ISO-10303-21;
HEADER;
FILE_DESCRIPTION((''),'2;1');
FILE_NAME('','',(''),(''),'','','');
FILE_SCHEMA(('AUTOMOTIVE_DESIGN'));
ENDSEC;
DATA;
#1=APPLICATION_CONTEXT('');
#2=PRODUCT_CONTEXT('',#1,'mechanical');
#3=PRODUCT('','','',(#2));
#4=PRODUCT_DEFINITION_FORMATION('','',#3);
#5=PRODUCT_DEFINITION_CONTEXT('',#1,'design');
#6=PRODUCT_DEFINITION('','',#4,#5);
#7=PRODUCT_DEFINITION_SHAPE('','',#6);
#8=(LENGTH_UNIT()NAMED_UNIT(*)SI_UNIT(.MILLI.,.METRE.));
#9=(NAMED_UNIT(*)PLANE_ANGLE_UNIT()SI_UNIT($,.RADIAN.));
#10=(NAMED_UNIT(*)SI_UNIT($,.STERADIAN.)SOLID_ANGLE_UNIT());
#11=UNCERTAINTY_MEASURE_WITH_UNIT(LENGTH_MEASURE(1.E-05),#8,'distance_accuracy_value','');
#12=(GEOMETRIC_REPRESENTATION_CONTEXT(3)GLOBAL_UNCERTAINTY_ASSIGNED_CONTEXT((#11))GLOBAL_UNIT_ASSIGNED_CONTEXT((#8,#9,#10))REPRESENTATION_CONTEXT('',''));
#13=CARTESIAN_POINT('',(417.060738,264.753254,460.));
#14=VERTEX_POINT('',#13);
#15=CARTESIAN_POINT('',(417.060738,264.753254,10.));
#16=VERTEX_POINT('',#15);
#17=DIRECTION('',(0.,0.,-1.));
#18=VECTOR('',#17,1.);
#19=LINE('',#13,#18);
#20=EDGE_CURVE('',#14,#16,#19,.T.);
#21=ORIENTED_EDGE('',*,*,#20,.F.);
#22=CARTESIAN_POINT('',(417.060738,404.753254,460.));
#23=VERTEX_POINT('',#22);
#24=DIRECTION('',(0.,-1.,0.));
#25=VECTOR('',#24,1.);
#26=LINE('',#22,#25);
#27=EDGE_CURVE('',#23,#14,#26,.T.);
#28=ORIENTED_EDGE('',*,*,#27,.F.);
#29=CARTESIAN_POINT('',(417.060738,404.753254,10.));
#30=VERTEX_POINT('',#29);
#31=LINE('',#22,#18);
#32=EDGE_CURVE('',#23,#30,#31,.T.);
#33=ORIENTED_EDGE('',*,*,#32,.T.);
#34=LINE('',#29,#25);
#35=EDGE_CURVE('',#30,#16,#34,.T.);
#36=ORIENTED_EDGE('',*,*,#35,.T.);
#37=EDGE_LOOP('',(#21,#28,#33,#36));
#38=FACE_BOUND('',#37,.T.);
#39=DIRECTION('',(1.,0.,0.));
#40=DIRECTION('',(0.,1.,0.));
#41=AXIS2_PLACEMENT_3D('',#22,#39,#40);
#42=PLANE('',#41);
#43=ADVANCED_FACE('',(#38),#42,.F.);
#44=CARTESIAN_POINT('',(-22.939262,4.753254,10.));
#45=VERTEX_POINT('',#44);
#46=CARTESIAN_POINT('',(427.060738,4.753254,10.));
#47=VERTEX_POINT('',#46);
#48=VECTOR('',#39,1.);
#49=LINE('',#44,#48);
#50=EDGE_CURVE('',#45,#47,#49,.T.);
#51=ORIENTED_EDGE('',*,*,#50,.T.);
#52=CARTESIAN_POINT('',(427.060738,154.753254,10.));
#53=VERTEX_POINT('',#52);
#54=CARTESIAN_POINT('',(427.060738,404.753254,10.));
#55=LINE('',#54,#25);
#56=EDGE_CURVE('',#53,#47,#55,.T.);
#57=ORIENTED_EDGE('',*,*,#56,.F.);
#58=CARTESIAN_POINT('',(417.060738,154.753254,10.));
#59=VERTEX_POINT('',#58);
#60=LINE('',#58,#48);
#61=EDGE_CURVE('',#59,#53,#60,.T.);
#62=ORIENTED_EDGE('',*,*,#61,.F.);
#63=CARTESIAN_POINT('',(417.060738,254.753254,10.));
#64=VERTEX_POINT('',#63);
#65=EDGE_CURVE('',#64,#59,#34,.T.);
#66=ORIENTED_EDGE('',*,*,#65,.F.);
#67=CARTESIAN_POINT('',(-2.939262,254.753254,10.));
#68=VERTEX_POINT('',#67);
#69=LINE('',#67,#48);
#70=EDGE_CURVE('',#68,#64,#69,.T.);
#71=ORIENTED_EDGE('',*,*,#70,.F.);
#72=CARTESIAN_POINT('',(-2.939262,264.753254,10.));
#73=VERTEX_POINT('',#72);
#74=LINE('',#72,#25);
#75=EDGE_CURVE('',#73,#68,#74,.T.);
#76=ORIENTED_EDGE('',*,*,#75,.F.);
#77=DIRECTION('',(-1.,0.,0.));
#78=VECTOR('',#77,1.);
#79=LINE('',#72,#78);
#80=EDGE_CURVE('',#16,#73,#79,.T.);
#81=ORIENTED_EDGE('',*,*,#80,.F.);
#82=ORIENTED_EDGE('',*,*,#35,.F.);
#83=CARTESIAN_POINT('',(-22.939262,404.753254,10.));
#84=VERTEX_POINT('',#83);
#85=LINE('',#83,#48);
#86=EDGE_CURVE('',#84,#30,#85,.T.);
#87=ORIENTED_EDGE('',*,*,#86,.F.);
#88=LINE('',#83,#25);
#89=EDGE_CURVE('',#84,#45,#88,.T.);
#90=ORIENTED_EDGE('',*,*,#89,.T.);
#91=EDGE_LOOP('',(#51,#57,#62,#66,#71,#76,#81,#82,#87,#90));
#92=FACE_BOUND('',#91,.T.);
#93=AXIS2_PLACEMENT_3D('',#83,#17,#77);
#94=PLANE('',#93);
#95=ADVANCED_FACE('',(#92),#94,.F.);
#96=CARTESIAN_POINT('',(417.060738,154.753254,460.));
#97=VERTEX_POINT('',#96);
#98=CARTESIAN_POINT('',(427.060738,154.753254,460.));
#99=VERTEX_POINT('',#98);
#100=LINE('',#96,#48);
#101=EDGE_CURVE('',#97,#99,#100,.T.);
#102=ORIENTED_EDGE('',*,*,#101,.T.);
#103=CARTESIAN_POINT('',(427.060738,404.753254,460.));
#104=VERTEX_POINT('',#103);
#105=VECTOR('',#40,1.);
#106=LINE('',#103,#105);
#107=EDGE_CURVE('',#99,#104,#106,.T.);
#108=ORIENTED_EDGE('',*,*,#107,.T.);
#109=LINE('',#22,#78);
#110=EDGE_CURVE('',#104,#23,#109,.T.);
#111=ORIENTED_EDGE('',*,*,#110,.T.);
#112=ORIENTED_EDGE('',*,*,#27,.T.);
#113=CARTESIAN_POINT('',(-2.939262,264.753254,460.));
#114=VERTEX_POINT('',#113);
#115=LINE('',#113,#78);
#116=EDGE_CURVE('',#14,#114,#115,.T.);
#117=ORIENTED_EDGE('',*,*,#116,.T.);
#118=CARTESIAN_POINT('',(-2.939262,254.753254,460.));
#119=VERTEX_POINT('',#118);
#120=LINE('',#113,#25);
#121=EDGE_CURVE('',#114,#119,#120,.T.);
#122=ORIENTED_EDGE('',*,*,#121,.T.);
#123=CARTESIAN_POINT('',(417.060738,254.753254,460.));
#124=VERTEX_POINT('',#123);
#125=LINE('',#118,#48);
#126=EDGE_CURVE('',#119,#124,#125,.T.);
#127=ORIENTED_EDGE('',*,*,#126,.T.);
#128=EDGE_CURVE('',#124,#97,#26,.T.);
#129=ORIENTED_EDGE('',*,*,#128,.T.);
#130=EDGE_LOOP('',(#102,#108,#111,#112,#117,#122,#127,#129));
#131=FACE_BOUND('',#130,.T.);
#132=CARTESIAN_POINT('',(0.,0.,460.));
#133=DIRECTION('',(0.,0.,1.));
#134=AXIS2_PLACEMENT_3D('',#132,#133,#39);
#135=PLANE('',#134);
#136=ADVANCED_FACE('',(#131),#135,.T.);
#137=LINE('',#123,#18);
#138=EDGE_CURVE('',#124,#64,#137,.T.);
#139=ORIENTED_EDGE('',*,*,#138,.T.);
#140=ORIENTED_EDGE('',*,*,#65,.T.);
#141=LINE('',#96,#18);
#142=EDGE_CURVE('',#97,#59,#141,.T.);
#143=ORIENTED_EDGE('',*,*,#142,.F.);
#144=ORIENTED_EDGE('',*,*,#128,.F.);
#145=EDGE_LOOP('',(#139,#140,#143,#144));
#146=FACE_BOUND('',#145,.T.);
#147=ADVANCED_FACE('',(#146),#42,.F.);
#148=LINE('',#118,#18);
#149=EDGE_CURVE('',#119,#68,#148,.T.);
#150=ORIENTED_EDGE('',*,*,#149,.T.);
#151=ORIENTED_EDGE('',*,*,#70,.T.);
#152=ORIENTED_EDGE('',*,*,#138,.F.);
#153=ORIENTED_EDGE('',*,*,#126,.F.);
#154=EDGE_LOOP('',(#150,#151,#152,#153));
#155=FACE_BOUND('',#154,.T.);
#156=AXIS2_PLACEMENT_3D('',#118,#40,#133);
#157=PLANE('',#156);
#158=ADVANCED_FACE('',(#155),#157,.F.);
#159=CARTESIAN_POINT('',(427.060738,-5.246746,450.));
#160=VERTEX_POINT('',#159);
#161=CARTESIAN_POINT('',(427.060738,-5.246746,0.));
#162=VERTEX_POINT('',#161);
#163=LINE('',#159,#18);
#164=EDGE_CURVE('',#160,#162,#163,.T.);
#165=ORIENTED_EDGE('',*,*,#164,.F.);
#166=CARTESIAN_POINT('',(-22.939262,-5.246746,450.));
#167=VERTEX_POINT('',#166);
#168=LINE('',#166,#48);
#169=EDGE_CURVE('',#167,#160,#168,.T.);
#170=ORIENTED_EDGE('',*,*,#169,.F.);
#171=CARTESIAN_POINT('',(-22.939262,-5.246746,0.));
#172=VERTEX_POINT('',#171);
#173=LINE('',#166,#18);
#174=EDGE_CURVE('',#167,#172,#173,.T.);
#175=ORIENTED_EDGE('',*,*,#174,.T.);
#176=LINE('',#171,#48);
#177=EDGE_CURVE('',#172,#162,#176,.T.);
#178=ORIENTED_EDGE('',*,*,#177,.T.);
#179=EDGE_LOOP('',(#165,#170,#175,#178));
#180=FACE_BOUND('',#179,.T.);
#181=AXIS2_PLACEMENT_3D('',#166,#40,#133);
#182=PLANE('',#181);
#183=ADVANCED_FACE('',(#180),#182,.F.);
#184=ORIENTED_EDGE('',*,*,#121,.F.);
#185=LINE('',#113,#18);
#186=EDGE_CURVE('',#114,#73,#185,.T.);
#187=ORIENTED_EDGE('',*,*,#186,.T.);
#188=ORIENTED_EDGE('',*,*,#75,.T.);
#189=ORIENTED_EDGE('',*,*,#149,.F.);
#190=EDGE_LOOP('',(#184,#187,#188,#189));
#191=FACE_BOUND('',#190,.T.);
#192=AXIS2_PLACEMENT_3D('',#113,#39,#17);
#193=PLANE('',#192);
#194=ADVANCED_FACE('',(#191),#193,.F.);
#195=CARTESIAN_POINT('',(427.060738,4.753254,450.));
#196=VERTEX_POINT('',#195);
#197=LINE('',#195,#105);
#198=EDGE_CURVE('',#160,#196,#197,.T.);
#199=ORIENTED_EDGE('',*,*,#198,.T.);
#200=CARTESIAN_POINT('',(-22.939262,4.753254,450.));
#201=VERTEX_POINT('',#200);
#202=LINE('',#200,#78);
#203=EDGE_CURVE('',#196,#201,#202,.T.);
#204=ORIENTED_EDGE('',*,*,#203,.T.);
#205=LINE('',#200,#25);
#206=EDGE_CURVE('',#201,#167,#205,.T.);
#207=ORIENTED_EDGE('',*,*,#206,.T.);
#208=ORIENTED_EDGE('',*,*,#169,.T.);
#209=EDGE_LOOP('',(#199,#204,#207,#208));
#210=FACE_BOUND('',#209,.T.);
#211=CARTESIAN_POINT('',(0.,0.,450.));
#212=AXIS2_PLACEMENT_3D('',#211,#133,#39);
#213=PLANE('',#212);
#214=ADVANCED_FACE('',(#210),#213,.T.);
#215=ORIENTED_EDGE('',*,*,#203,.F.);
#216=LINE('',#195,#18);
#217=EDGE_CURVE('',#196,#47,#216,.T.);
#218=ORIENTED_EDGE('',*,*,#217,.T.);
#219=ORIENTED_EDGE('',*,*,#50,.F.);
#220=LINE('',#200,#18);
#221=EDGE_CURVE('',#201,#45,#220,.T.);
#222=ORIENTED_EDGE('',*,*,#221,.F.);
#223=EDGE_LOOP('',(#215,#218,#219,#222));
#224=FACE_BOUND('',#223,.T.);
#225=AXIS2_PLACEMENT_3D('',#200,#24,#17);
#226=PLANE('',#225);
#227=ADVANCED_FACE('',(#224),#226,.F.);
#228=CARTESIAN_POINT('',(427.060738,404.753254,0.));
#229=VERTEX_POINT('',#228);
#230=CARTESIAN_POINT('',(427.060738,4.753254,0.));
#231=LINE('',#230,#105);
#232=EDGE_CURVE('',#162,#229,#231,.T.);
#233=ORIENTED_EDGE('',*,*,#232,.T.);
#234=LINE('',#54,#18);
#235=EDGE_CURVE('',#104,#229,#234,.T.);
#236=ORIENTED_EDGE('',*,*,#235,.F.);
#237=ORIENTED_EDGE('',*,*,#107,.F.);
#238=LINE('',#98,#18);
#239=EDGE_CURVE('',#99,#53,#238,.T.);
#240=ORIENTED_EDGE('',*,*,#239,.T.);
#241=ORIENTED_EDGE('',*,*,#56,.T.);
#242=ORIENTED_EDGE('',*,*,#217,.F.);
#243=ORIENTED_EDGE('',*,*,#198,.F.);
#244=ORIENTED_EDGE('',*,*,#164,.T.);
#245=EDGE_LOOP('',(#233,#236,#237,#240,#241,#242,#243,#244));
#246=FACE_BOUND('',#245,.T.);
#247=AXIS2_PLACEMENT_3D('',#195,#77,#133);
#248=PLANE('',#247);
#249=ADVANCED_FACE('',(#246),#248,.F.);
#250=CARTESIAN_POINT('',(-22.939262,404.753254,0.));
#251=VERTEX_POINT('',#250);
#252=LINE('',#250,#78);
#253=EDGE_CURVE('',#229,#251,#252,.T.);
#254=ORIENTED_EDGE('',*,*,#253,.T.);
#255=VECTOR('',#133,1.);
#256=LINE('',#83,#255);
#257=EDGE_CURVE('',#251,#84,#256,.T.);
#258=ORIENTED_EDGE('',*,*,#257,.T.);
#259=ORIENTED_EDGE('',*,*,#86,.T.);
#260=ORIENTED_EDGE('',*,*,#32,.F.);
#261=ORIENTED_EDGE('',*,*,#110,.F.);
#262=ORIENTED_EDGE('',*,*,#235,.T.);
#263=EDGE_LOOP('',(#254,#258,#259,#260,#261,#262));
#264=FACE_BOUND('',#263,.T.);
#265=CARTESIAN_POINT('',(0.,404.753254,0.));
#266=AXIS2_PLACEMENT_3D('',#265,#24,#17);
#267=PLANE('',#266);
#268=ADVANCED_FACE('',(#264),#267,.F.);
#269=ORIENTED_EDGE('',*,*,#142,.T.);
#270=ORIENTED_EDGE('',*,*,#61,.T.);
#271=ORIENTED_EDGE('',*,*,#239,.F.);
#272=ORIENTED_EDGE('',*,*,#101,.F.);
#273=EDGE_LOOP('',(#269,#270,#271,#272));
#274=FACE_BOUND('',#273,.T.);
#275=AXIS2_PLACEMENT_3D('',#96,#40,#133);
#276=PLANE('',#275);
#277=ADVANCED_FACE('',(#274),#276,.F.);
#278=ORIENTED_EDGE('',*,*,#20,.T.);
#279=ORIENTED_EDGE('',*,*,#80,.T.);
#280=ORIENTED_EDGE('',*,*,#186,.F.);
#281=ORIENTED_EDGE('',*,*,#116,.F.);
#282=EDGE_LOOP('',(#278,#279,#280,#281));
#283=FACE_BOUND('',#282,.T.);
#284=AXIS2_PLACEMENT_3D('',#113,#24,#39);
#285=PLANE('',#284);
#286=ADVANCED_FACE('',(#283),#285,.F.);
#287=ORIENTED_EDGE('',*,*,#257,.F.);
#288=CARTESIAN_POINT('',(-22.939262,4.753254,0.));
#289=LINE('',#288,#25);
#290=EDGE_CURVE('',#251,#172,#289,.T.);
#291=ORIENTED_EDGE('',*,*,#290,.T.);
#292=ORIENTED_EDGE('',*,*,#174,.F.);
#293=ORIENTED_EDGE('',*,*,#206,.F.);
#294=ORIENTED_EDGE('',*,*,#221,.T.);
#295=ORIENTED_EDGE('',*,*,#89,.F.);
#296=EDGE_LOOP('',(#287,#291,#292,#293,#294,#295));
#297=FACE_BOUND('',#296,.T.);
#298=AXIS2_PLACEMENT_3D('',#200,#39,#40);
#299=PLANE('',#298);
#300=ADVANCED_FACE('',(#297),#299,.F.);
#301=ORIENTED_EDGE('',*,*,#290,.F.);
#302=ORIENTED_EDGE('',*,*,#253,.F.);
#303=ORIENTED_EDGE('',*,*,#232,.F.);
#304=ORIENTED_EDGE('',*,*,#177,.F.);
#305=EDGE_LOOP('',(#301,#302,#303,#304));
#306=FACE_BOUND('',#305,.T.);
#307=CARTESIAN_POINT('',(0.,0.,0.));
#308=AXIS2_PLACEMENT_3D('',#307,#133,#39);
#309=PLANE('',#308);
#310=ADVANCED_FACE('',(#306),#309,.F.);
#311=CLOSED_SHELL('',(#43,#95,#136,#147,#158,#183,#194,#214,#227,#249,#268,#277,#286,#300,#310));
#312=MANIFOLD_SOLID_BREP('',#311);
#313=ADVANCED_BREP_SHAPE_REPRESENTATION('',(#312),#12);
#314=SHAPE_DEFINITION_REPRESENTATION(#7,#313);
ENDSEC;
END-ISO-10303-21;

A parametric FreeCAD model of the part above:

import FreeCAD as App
import Part
import Sketcher
from FreeCAD import Vector


def add_polygon(sketch, points):
    """Adds a closed chain of lines whose ends are joined by coincident constraints."""
    first, n = sketch.GeometryCount, len(points)
    for a, b in zip(points, points[1:] + points[:1]):
        sketch.addGeometry(Part.LineSegment(App.Vector(*a, 0), App.Vector(*b, 0)), False)
    for i in range(n):
        sketch.addConstraint(Sketcher.Constraint("Coincident", first + i, 2, first + (i + 1) % n, 1))

doc = App.newDocument("Part")
body = doc.addObject("PartDesign::Body", "Body")

sketch1 = body.newObject("Sketcher::SketchObject", "Sketch")
sketch1.AttachmentSupport = (doc.getObject("XY_Plane"), [""])
sketch1.MapMode = "FlatFace"
add_polygon(sketch1, [(-23, 5), (-23, -5), (427, -5), (427, 5)])
sketch1.addConstraint(Sketcher.Constraint("Vertical", 0))
sketch1.addConstraint(Sketcher.Constraint("Horizontal", 1))
sketch1.addConstraint(Sketcher.Constraint("Vertical", 2))
sketch1.addConstraint(Sketcher.Constraint("Horizontal", 3))
sketch1.addConstraint(Sketcher.Constraint("DistanceX", 1, 1, 1, 2, 450.0))
sketch1.addConstraint(Sketcher.Constraint("DistanceY", 0, 2, 0, 1, 10.0))
sketch1.addConstraint(Sketcher.Constraint("DistanceX", 0, 2, -1, 1, 22.939262))
sketch1.addConstraint(Sketcher.Constraint("DistanceY", 0, 2, -1, 1, 5.246746))
pad1 = body.newObject("PartDesign::Pad", "Pad")
pad1.Profile = sketch1
pad1.Length = 450

sketch2 = body.newObject("Sketcher::SketchObject", "Sketch001")
sketch2.AttachmentSupport = (doc.getObject("XZ_Plane"), [""])
sketch2.MapMode = "FlatFace"
sketch2.AttachmentOffset = App.Placement(Vector(0, 0, -4.753254), App.Rotation())
add_polygon(sketch2, [(-23, 0), (-23, 10), (427, 10), (427, 0)])
sketch2.addConstraint(Sketcher.Constraint("Vertical", 0))
sketch2.addConstraint(Sketcher.Constraint("Horizontal", 1))
sketch2.addConstraint(Sketcher.Constraint("Vertical", 2))
sketch2.addConstraint(Sketcher.Constraint("Horizontal", 3))
sketch2.addConstraint(Sketcher.Constraint("PointOnObject", 2, 2, -1))
sketch2.addConstraint(Sketcher.Constraint("DistanceX", 1, 1, 1, 2, 450.0))
sketch2.addConstraint(Sketcher.Constraint("DistanceY", 0, 1, 0, 2, 10.0))
sketch2.addConstraint(Sketcher.Constraint("DistanceX", 0, 2, -1, 1, 22.939262))
pad2 = body.newObject("PartDesign::Pad", "Pad001")
pad2.Profile = sketch2
pad2.Length = 400
pad2.Reversed = True

sketch3 = body.newObject("Sketcher::SketchObject", "Sketch002")
sketch3.AttachmentSupport = (doc.getObject("XY_Plane"), [""])
sketch3.MapMode = "FlatFace"
sketch3.AttachmentOffset = App.Placement(Vector(0, 0, 10), App.Rotation())
add_polygon(sketch3, [(417, 405), (417, 155), (427, 155), (427, 405)])
sketch3.addConstraint(Sketcher.Constraint("Vertical", 0))
sketch3.addConstraint(Sketcher.Constraint("Horizontal", 1))
sketch3.addConstraint(Sketcher.Constraint("Vertical", 2))
sketch3.addConstraint(Sketcher.Constraint("Horizontal", 3))
sketch3.addConstraint(Sketcher.Constraint("DistanceX", 1, 1, 1, 2, 10.0))
sketch3.addConstraint(Sketcher.Constraint("DistanceY", 0, 2, 0, 1, 250.0))
sketch3.addConstraint(Sketcher.Constraint("DistanceX", -1, 1, 0, 2, 417.060738))
sketch3.addConstraint(Sketcher.Constraint("DistanceY", -1, 1, 0, 2, 154.753254))
pad3 = body.newObject("PartDesign::Pad", "Pad002")
pad3.Profile = sketch3
pad3.Length = 450

sketch4 = body.newObject("Sketcher::SketchObject", "Sketch003")
sketch4.AttachmentSupport = (doc.getObject("XY_Plane"), [""])
sketch4.MapMode = "FlatFace"
sketch4.AttachmentOffset = App.Placement(Vector(0, 0, 10), App.Rotation())
add_polygon(sketch4, [(-3, 265), (-3, 255), (417, 255), (417, 265)])
sketch4.addConstraint(Sketcher.Constraint("Vertical", 0))
sketch4.addConstraint(Sketcher.Constraint("Horizontal", 1))
sketch4.addConstraint(Sketcher.Constraint("Vertical", 2))
sketch4.addConstraint(Sketcher.Constraint("Horizontal", 3))
sketch4.addConstraint(Sketcher.Constraint("DistanceX", 1, 1, 1, 2, 420.0))
sketch4.addConstraint(Sketcher.Constraint("DistanceY", 0, 2, 0, 1, 10.0))
sketch4.addConstraint(Sketcher.Constraint("DistanceX", 0, 2, -1, 1, 2.939262))
sketch4.addConstraint(Sketcher.Constraint("DistanceY", -1, 1, 0, 2, 254.753254))
pad4 = body.newObject("PartDesign::Pad", "Pad003")
pad4.Profile = sketch4
pad4.Length = 450

doc.recompute()
